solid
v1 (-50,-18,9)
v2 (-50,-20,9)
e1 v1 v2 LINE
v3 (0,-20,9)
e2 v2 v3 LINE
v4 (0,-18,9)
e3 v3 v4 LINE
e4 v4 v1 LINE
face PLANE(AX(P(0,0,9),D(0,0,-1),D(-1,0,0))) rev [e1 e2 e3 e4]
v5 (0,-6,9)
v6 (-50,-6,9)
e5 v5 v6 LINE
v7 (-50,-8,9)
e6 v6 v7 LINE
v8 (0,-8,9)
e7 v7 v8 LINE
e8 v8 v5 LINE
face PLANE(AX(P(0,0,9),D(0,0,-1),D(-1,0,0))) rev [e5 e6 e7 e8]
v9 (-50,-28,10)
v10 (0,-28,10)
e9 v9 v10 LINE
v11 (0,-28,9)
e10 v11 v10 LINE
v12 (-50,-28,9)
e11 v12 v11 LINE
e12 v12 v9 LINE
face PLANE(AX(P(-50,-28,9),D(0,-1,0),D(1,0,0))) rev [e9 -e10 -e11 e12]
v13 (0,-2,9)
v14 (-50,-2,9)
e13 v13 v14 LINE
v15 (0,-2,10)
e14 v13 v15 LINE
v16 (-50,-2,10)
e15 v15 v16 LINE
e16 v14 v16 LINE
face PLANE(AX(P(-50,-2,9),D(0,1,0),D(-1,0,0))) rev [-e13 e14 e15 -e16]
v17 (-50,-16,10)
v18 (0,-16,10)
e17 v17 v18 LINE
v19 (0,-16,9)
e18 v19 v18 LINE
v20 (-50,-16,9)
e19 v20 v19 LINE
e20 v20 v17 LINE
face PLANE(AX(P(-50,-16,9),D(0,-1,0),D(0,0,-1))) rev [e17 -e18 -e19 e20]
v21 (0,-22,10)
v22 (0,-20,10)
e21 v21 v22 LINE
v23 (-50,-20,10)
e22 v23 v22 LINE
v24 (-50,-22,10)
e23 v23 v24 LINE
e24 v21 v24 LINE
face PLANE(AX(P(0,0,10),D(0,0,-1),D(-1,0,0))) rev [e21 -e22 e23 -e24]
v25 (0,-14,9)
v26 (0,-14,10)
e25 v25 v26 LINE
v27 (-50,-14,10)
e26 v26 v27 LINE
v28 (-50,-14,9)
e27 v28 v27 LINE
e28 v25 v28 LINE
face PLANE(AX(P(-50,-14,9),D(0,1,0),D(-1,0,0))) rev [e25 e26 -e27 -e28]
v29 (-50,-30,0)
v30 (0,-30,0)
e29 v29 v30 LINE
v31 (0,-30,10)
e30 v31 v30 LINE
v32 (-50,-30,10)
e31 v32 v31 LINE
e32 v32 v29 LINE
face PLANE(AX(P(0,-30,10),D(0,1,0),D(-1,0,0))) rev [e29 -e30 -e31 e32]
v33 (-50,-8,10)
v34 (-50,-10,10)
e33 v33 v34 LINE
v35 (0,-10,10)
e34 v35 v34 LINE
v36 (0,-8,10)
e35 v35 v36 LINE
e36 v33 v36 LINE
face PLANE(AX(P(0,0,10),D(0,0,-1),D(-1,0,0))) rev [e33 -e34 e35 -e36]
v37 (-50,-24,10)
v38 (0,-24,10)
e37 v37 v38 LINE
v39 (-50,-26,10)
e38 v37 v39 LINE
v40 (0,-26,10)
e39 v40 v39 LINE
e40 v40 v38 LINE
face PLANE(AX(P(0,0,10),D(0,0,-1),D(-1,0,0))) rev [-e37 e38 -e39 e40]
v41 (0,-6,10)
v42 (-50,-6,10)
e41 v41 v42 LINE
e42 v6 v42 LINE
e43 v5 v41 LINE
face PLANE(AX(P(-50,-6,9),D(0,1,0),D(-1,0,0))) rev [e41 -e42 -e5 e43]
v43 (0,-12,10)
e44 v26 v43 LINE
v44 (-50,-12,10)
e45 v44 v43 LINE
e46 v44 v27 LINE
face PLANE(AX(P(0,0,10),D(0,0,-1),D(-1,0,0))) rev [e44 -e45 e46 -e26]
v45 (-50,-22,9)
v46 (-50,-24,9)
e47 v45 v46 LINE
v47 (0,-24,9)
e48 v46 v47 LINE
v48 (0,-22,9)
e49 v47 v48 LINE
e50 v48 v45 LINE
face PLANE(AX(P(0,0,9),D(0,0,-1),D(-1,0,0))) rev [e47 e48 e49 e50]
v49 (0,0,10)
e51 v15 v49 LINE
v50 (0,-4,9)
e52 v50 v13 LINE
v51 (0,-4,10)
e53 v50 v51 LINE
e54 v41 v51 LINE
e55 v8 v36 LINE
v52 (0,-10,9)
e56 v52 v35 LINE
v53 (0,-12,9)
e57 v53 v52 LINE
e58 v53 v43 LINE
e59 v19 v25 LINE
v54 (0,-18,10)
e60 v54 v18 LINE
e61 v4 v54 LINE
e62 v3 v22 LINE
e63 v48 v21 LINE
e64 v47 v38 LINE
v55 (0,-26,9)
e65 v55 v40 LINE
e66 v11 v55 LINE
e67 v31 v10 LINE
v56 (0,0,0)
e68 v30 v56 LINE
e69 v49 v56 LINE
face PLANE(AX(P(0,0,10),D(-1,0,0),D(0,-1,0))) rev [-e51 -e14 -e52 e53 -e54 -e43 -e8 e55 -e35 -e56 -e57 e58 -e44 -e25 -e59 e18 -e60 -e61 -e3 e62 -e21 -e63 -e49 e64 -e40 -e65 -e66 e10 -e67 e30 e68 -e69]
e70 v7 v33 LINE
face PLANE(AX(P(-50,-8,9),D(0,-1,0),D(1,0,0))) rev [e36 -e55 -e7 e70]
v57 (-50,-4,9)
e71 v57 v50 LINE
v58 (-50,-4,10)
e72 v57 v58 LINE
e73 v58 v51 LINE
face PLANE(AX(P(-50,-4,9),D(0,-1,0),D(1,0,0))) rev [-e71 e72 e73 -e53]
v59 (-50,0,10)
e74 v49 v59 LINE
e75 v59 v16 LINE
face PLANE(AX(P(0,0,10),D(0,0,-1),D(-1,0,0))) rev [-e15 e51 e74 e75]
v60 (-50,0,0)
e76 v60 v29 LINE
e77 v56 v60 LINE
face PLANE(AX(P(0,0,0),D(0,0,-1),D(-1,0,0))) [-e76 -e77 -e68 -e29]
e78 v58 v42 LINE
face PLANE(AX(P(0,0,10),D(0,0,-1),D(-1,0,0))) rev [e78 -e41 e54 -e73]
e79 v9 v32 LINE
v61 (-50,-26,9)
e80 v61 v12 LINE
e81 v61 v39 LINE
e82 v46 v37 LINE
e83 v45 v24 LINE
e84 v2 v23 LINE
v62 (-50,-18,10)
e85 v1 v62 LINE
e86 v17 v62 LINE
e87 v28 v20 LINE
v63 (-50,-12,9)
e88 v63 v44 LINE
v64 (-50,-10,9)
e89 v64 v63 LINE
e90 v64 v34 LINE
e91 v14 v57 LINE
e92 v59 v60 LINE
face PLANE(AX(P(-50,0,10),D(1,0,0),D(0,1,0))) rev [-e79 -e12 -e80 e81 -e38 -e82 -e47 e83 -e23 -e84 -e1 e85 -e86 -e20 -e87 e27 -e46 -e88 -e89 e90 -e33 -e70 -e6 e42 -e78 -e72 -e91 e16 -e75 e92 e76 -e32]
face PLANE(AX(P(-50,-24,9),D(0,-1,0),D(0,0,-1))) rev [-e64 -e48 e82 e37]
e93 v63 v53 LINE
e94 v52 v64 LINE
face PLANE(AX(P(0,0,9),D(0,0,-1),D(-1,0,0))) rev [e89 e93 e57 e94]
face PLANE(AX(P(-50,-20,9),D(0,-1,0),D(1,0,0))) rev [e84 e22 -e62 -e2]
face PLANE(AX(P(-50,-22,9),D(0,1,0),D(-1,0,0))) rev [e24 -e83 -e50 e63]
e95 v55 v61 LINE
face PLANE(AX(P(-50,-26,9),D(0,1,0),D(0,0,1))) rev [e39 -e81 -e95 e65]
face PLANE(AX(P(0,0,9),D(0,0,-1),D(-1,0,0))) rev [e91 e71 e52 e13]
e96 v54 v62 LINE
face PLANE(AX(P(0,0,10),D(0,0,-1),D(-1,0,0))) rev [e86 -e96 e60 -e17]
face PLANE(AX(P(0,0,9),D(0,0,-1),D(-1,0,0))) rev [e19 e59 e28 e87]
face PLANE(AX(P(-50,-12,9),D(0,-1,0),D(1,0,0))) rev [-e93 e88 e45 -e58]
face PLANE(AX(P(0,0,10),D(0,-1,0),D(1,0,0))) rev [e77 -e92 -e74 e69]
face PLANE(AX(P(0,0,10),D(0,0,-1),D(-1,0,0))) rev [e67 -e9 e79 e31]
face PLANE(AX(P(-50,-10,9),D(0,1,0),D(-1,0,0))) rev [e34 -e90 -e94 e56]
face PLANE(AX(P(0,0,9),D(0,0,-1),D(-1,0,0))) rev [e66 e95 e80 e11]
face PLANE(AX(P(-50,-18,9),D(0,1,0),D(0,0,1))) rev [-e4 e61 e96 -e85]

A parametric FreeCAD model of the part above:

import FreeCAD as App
import Part
import Sketcher

V = App.Vector
Q = App.Units.Quantity

doc = App.newDocument("Part")
body = doc.addObject("PartDesign::Body", "Body")

sketch1 = doc.addObject("Sketcher::SketchObject", "Sketch")
body.addObject(sketch1)
sketch1.AttachmentSupport = (doc.XY_Plane, [""])
sketch1.MapMode = "FlatFace"
sketch1.addGeometry([
    Part.LineSegment(V(-50, 0, 0), V(-50, -30, 0)),
    Part.LineSegment(V(-50, -30, 0), V(0, -30, 0)),
    Part.LineSegment(V(0, -30, 0), V(0, 0, 0)),
    Part.LineSegment(V(0, 0, 0), V(-50, 0, 0)),
], False)
sketch1.addConstraint([
    Sketcher.Constraint("Coincident", 0, 2, 1, 1),
    Sketcher.Constraint("Coincident", 1, 2, 2, 1),
    Sketcher.Constraint("Coincident", 2, 2, 3, 1),
    Sketcher.Constraint("Coincident", 3, 2, 0, 1),
    Sketcher.Constraint("Vertical", 0),
    Sketcher.Constraint("Horizontal", 1),
    Sketcher.Constraint("Vertical", 2),
    Sketcher.Constraint("Horizontal", 3),
    Sketcher.Constraint("Coincident", 2, 2, -1, 1),
    Sketcher.Constraint("DistanceX", 1, 1, 1, 2, Q("50 mm")),
    Sketcher.Constraint("DistanceY", 0, 2, 0, 1, Q("30 mm")),
])
pad1 = doc.addObject("PartDesign::Pad", "Pad")
body.addObject(pad1)
pad1.Profile = sketch1
pad1.Length = 10

sketch2 = doc.addObject("Sketcher::SketchObject", "Sketch001")
body.addObject(sketch2)
sketch2.AttachmentSupport = (doc.XY_Plane, [""])
sketch2.MapMode = "FlatFace"
sketch2.AttachmentOffset = App.Placement(V(0, 0, 10), App.Rotation())
sketch2.addGeometry([
    Part.LineSegment(V(-50, -2, 0), V(-50, -4, 0)),
    Part.LineSegment(V(-50, -4, 0), V(0, -4, 0)),
    Part.LineSegment(V(0, -4, 0), V(0, -2, 0)),
    Part.LineSegment(V(0, -2, 0), V(-50, -2, 0)),
    Part.LineSegment(V(-50, -6, 0), V(-50, -8, 0)),
    Part.LineSegment(V(-50, -8, 0), V(0, -8, 0)),
    Part.LineSegment(V(0, -8, 0), V(0, -6, 0)),
    Part.LineSegment(V(0, -6, 0), V(-50, -6, 0)),
    Part.LineSegment(V(-50, -10, 0), V(-50, -12, 0)),
    Part.LineSegment(V(-50, -12, 0), V(0, -12, 0)),
    Part.LineSegment(V(0, -12, 0), V(0, -10, 0)),
    Part.LineSegment(V(0, -10, 0), V(-50, -10, 0)),
    Part.LineSegment(V(-50, -14, 0), V(-50, -16, 0)),
    Part.LineSegment(V(-50, -16, 0), V(0, -16, 0)),
    Part.LineSegment(V(0, -16, 0), V(0, -14, 0)),
    Part.LineSegment(V(0, -14, 0), V(-50, -14, 0)),
    Part.LineSegment(V(-50, -18, 0), V(-50, -20, 0)),
    Part.LineSegment(V(-50, -20, 0), V(0, -20, 0)),
    Part.LineSegment(V(0, -20, 0), V(0, -18, 0)),
    Part.LineSegment(V(0, -18, 0), V(-50, -18, 0)),
    Part.LineSegment(V(-50, -22, 0), V(-50, -24, 0)),
    Part.LineSegment(V(-50, -24, 0), V(0, -24, 0)),
    Part.LineSegment(V(0, -24, 0), V(0, -22, 0)),
    Part.LineSegment(V(0, -22, 0), V(-50, -22, 0)),
    Part.LineSegment(V(-50, -26, 0), V(-50, -28, 0)),
    Part.LineSegment(V(-50, -28, 0), V(0, -28, 0)),
    Part.LineSegment(V(0, -28, 0), V(0, -26, 0)),
    Part.LineSegment(V(0, -26, 0), V(-50, -26, 0)),
], False)
sketch2.addConstraint([
    Sketcher.Constraint("Coincident", 0, 2, 1, 1),
    Sketcher.Constraint("Coincident", 1, 2, 2, 1),
    Sketcher.Constraint("Coincident", 2, 2, 3, 1),
    Sketcher.Constraint("Coincident", 3, 2, 0, 1),
    Sketcher.Constraint("Coincident", 4, 2, 5, 1),
    Sketcher.Constraint("Coincident", 5, 2, 6, 1),
    Sketcher.Constraint("Coincident", 6, 2, 7, 1),
    Sketcher.Constraint("Coincident", 7, 2, 4, 1),
    Sketcher.Constraint("Coincident", 8, 2, 9, 1),
    Sketcher.Constraint("Coincident", 9, 2, 10, 1),
    Sketcher.Constraint("Coincident", 10, 2, 11, 1),
    Sketcher.Constraint("Coincident", 11, 2, 8, 1),
    Sketcher.Constraint("Coincident", 12, 2, 13, 1),
    Sketcher.Constraint("Coincident", 13, 2, 14, 1),
    Sketcher.Constraint("Coincident", 14, 2, 15, 1),
    Sketcher.Constraint("Coincident", 15, 2, 12, 1),
    Sketcher.Constraint("Coincident", 16, 2, 17, 1),
    Sketcher.Constraint("Coincident", 17, 2, 18, 1),
    Sketcher.Constraint("Coincident", 18, 2, 19, 1),
    Sketcher.Constraint("Coincident", 19, 2, 16, 1),
    Sketcher.Constraint("Coincident", 20, 2, 21, 1),
    Sketcher.Constraint("Coincident", 21, 2, 22, 1),
    Sketcher.Constraint("Coincident", 22, 2, 23, 1),
    Sketcher.Constraint("Coincident", 23, 2, 20, 1),
    Sketcher.Constraint("Coincident", 24, 2, 25, 1),
    Sketcher.Constraint("Coincident", 25, 2, 26, 1),
    Sketcher.Constraint("Coincident", 26, 2, 27, 1),
    Sketcher.Constraint("Coincident", 27, 2, 24, 1),
    Sketcher.Constraint("Vertical", 0),
    Sketcher.Constraint("Horizontal", 1),
    Sketcher.Constraint("Vertical", 2),
    Sketcher.Constraint("Horizontal", 3),
    Sketcher.Constraint("Vertical", 4),
    Sketcher.Constraint("Horizontal", 5),
    Sketcher.Constraint("Vertical", 6),
    Sketcher.Constraint("Horizontal", 7),
    Sketcher.Constraint("Vertical", 8),
    Sketcher.Constraint("Horizontal", 9),
    Sketcher.Constraint("Vertical", 10),
    Sketcher.Constraint("Horizontal", 11),
    Sketcher.Constraint("Vertical", 12),
    Sketcher.Constraint("Horizontal", 13),
    Sketcher.Constraint("Vertical", 14),
    Sketcher.Constraint("Horizontal", 15),
    Sketcher.Constraint("Vertical", 16),
    Sketcher.Constraint("Horizontal", 17),
    Sketcher.Constraint("Vertical", 18),
    Sketcher.Constraint("Horizontal", 19),
    Sketcher.Constraint("Vertical", 20),
    Sketcher.Constraint("Horizontal", 21),
    Sketcher.Constraint("Vertical", 22),
    Sketcher.Constraint("Horizontal", 23),
    Sketcher.Constraint("Vertical", 24),
    Sketcher.Constraint("Horizontal", 25),
    Sketcher.Constraint("Vertical", 26),
    Sketcher.Constraint("Horizontal", 27),
    Sketcher.Constraint("PointOnObject", 1, 2, -2),
    Sketcher.Constraint("PointOnObject", 5, 2, -2),
    Sketcher.Constraint("PointOnObject", 9, 2, -2),
    Sketcher.Constraint("PointOnObject", 13, 2, -2),
    Sketcher.Constraint("PointOnObject", 17, 2, -2),
    Sketcher.Constraint("PointOnObject", 21, 2, -2),
    Sketcher.Constraint("PointOnObject", 25, 2, -2),
    Sketcher.Constraint("Vertical", 3, 2, 4, 2),
    Sketcher.Constraint("Vertical", 7, 2, 8, 2),
    Sketcher.Constraint("Vertical", 11, 2, 12, 2),
    Sketcher.Constraint("Vertical", 15, 2, 16, 2),
    Sketcher.Constraint("Vertical", 19, 2, 20, 2),
    Sketcher.Constraint("Vertical", 23, 2, 24, 2),
    Sketcher.Constraint("Equal", 2, 4),
    Sketcher.Constraint("Equal", 6, 8),
    Sketcher.Constraint("Equal", 10, 12),
    Sketcher.Constraint("Equal", 14, 16),
    Sketcher.Constraint("Equal", 18, 20),
    Sketcher.Constraint("Equal", 22, 24),
    Sketcher.Constraint("DistanceX", 1, 1, 1, 2, Q("50 mm")),
    Sketcher.Constraint("DistanceY", 0, 2, 0, 1, Q("2 mm")),
    Sketcher.Constraint("DistanceY", 0, 2, -1, 1, Q("4 mm")),
    Sketcher.Constraint("DistanceY", 4, 2, -1, 1, Q("8 mm")),
    Sketcher.Constraint("DistanceY", 8, 2, -1, 1, Q("12 mm")),
    Sketcher.Constraint("DistanceY", 12, 2, -1, 1, Q("16 mm")),
    Sketcher.Constraint("DistanceY", 16, 2, -1, 1, Q("20 mm")),
    Sketcher.Constraint("DistanceY", 20, 2, -1, 1, Q("24 mm")),
    Sketcher.Constraint("DistanceY", 24, 2, -1, 1, Q("28 mm")),
])
pocket1 = doc.addObject("PartDesign::Pocket", "Pocket")
body.addObject(pocket1)
pocket1.Profile = sketch2
pocket1.Length = 1

doc.recompute()
